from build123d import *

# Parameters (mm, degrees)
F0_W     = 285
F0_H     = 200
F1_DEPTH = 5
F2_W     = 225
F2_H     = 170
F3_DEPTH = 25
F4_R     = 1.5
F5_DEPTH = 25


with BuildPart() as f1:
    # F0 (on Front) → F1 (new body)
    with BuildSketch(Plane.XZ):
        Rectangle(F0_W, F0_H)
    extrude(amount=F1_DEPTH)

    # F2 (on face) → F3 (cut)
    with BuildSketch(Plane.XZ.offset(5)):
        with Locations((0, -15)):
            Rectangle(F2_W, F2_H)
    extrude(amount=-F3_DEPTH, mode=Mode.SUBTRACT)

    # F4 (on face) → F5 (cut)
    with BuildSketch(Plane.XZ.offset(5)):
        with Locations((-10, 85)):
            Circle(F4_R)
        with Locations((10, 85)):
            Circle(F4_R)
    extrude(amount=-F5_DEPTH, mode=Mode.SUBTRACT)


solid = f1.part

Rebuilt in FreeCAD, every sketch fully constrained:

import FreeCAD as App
import Part
import Sketcher


def add_polygon(sketch, points):
    """Adds a closed chain of lines whose ends are joined by coincident constraints."""
    first, n = sketch.GeometryCount, len(points)
    for a, b in zip(points, points[1:] + points[:1]):
        sketch.addGeometry(Part.LineSegment(App.Vector(*a, 0), App.Vector(*b, 0)), False)
    for i in range(n):
        sketch.addConstraint(Sketcher.Constraint("Coincident", first + i, 2, first + (i + 1) % n, 1))

doc = App.newDocument("Part")
body = doc.addObject("PartDesign::Body", "Body")

sketch1 = body.newObject("Sketcher::SketchObject", "Sketch")
sketch1.AttachmentSupport = (doc.getObject("XZ_Plane"), [""])
sketch1.MapMode = "FlatFace"
add_polygon(sketch1, [(-142, 100), (-142, -100), (142, -100), (142, 100)])
sketch1.addConstraint([
    Sketcher.Constraint("Vertical", 0),
    Sketcher.Constraint("Horizontal", 1),
    Sketcher.Constraint("Vertical", 2),
    Sketcher.Constraint("Horizontal", 3),
    Sketcher.Constraint("Symmetric", 0, 2, 2, 2, -1, 1),
    Sketcher.Constraint("DistanceX", 1, 1, 1, 2, 285.0),
    Sketcher.Constraint("DistanceY", 0, 2, 0, 1, 200.0),
])
pad1 = body.newObject("PartDesign::Pad", "Pad")
pad1.Profile = sketch1
pad1.Length = 5

sketch2 = body.newObject("Sketcher::SketchObject", "Sketch001")
sketch2.AttachmentSupport = (doc.getObject("XZ_Plane"), [""])
sketch2.MapMode = "FlatFace"
sketch2.AttachmentOffset = App.Placement(App.Vector(0, 0, 5), App.Rotation())
add_polygon(sketch2, [(-112, 70), (-112, -100), (112, -100), (112, 70)])
sketch2.addConstraint([
    Sketcher.Constraint("Vertical", 0),
    Sketcher.Constraint("Horizontal", 1),
    Sketcher.Constraint("Vertical", 2),
    Sketcher.Constraint("Horizontal", 3),
    Sketcher.Constraint("DistanceX", 1, 1, 1, 2, 225.0),
    Sketcher.Constraint("DistanceY", 0, 2, 0, 1, 170.0),
    Sketcher.Constraint("DistanceY", 0, 2, -1, 1, 100.0),
    Sketcher.Constraint("DistanceX", 0, 2, -1, 1, 112.5),
])
pocket1 = body.newObject("PartDesign::Pocket", "Pocket")
pocket1.Profile = sketch2
pocket1.Length = 25

sketch3 = body.newObject("Sketcher::SketchObject", "Sketch002")
sketch3.AttachmentSupport = (doc.getObject("XZ_Plane"), [""])
sketch3.MapMode = "FlatFace"
sketch3.AttachmentOffset = App.Placement(App.Vector(0, 0, 5), App.Rotation())
sketch3.addGeometry([
    Part.Circle(App.Vector(-10, 85, 0), App.Vector(0, 0, 1), 1.5),
    Part.Circle(App.Vector(10, 85, 0), App.Vector(0, 0, 1), 1.5),
], False)
sketch3.addConstraint([
    Sketcher.Constraint("Equal", 0, 1),
    Sketcher.Constraint("Symmetric", 0, 3, 1, 3, -2),
    Sketcher.Constraint("Diameter", 0, 3.0),
    Sketcher.Constraint("DistanceX", 0, 3, -1, 1, 10.0),
    Sketcher.Constraint("DistanceY", -1, 1, 0, 3, 85.0),
])
pocket2 = body.newObject("PartDesign::Pocket", "Pocket001")
pocket2.Profile = sketch3
pocket2.Length = 25

doc.recompute()
